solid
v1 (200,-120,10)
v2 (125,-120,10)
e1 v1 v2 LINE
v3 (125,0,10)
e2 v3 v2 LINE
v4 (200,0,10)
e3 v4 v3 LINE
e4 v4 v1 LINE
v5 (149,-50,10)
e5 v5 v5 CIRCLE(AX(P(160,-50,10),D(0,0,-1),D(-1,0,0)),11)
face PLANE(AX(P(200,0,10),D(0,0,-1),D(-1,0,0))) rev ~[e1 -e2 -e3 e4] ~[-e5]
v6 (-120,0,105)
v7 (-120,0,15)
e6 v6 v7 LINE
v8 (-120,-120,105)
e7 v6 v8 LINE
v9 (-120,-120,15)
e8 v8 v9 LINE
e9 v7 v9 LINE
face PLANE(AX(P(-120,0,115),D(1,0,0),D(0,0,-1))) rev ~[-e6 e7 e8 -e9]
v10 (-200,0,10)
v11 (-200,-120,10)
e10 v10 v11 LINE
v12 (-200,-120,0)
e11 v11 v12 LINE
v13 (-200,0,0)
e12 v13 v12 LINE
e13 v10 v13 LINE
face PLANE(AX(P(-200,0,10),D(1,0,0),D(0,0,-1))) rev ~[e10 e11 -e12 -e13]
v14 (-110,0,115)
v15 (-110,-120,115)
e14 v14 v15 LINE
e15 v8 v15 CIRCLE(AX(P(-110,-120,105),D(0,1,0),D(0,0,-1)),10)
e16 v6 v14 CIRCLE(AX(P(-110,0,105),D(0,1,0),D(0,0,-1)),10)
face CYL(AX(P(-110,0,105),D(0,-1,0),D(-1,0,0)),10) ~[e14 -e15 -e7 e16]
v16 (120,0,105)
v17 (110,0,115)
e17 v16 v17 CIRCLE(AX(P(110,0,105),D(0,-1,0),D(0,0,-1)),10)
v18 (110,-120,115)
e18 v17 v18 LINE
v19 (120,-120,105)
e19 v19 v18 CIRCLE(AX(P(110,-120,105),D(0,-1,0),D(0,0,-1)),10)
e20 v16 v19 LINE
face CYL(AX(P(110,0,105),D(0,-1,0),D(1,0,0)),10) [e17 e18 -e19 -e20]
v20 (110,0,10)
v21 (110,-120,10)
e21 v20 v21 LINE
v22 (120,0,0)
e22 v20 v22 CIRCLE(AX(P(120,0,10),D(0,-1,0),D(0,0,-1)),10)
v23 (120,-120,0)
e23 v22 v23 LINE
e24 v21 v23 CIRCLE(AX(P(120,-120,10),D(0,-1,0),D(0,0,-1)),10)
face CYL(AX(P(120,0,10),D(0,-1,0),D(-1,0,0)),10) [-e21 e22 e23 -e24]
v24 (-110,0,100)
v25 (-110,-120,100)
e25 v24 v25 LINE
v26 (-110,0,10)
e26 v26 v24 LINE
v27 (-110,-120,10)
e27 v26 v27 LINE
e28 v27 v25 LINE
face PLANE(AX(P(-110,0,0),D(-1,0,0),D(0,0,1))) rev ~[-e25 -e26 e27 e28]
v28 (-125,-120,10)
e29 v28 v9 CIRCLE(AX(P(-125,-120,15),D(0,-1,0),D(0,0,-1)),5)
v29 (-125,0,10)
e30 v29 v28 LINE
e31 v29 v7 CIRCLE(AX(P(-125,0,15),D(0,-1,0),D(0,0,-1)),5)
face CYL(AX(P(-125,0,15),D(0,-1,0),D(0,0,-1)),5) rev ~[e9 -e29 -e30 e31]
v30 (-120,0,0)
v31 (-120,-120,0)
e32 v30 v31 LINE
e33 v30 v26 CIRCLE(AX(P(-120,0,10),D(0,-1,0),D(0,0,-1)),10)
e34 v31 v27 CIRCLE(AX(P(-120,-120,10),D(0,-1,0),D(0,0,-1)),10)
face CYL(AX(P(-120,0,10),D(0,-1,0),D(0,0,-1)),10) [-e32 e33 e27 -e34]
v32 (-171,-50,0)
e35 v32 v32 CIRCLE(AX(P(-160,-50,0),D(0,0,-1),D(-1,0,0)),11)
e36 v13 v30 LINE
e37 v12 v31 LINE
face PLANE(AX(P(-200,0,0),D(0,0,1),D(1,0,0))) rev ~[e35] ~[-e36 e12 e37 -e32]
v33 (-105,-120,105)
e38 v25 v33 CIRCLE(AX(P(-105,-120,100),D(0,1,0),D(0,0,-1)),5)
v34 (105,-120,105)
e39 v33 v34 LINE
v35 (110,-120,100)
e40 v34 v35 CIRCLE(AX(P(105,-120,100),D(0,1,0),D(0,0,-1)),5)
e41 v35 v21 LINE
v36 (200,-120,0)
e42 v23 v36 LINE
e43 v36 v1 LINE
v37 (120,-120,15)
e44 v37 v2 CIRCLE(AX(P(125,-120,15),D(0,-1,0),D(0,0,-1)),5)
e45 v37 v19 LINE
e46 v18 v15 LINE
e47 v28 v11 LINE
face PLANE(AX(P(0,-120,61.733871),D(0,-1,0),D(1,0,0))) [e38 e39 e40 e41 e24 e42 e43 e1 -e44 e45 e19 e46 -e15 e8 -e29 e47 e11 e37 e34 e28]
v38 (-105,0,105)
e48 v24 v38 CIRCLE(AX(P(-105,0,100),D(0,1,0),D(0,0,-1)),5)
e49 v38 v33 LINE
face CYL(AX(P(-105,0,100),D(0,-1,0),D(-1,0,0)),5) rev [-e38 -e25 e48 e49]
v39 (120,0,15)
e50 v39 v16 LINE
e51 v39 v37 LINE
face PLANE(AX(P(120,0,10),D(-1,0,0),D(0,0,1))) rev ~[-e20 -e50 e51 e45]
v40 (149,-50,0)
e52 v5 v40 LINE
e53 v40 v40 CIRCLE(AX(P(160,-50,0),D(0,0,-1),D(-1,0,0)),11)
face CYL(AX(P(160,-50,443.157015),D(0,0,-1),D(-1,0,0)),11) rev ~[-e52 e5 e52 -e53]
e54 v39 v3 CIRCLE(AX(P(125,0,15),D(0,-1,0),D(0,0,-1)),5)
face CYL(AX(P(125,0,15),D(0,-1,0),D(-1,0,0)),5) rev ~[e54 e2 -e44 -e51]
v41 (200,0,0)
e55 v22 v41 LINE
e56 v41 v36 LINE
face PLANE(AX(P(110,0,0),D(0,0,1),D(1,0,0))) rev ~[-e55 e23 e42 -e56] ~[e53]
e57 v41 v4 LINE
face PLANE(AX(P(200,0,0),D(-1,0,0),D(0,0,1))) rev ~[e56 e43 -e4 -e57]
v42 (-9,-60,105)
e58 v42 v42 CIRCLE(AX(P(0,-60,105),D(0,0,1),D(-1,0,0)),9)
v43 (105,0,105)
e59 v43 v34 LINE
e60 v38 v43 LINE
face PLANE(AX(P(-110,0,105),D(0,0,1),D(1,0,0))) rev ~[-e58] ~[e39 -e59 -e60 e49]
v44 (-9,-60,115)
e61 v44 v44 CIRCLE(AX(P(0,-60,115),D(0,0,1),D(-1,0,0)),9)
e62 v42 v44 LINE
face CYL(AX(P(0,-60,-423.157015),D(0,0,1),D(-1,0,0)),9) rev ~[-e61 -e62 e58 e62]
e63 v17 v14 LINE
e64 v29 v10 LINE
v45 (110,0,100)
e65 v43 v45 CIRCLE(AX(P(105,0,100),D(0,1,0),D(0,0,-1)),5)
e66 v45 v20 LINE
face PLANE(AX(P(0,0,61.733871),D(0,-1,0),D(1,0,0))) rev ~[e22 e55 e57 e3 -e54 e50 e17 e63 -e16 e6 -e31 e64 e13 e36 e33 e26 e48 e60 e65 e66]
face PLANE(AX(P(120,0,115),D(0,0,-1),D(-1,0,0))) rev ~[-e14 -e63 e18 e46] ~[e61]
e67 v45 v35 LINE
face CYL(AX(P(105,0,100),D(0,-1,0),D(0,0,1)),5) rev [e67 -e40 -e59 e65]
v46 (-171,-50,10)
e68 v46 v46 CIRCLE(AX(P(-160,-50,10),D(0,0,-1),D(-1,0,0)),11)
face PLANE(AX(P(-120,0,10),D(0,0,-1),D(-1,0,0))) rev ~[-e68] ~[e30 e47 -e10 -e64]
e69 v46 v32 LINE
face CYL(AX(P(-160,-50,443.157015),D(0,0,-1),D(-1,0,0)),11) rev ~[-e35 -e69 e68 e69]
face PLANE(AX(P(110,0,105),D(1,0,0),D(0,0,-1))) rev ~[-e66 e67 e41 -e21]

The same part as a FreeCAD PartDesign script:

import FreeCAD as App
import Part
import Sketcher


def edges_at(feature, points):
    """Names of the edges that pass closest to the given points."""
    edges = feature.Shape.Edges
    near = lambda p: min(range(len(edges)), key=lambda i: edges[i].distToShape(Part.Vertex(*p))[0])
    return sorted({f"Edge{near(p) + 1}" for p in points})


def add_polygon(sketch, points):
    """Adds a closed chain of lines whose ends are joined by coincident constraints."""
    first, n = sketch.GeometryCount, len(points)
    for a, b in zip(points, points[1:] + points[:1]):
        sketch.addGeometry(Part.LineSegment(App.Vector(*a, 0), App.Vector(*b, 0)), False)
    for i in range(n):
        sketch.addConstraint(Sketcher.Constraint("Coincident", first + i, 2, first + (i + 1) % n, 1))

doc = App.newDocument("Part")
body = doc.addObject("PartDesign::Body", "Body")

# Sketch on XZ plane
sketch1 = body.newObject("Sketcher::SketchObject", "Sketch")
sketch1.AttachmentSupport = (doc.getObject("XZ_Plane"), [""])
sketch1.MapMode = "FlatFace"
add_polygon(sketch1, [(-200, 10), (-200, 0), (-110, 0), (-110, 105), (110, 105), (110, 0), (200, 0), (200, 10), (120, 10), (120, 115), (-120, 115), (-120, 10)])  # lines 0-11
sketch1.addConstraint([
    Sketcher.Constraint("Vertical", 0),
    Sketcher.Constraint("Horizontal", 1),
    Sketcher.Constraint("Vertical", 2),
    Sketcher.Constraint("Horizontal", 3),
    Sketcher.Constraint("Vertical", 4),
    Sketcher.Constraint("Horizontal", 5),
    Sketcher.Constraint("Vertical", 6),
    Sketcher.Constraint("Horizontal", 7),
    Sketcher.Constraint("Vertical", 8),
    Sketcher.Constraint("Horizontal", 9),
    Sketcher.Constraint("Vertical", 10),
    Sketcher.Constraint("Horizontal", 11),
    Sketcher.Constraint("Symmetric", 1, 2, 4, 2, -1, 1),
    Sketcher.Constraint("Symmetric", 0, 2, 5, 2, -2),
    Sketcher.Constraint("Symmetric", 7, 2, 10, 2, -2),
    Sketcher.Constraint("Equal", 4, 8),
    Sketcher.Constraint("DistanceX", 1, 1, 1, 2, 90.0),
    Sketcher.Constraint("DistanceX", 3, 1, 3, 2, 220.0),
    Sketcher.Constraint("DistanceX", 7, 2, 7, 1, 80.0),
    Sketcher.Constraint("DistanceY", 0, 2, 0, 1, 10.0),
    Sketcher.Constraint("DistanceY", 2, 1, 2, 2, 105.0),
])
pad1 = body.newObject("PartDesign::Pad", "Pad")
pad1.Profile = sketch1
pad1.Length = 120

# Sketch on XY plane
sketch2 = body.newObject("Sketcher::SketchObject", "Sketch001")
sketch2.AttachmentSupport = (doc.getObject("XY_Plane"), [""])
sketch2.MapMode = "FlatFace"
sketch2.AttachmentOffset = App.Placement(App.Vector(0, 0, 10), App.Rotation())
sketch2.addGeometry([
    Part.Circle(App.Vector(160, -50, 0), App.Vector(0, 0, 1), 11),
    Part.Circle(App.Vector(-160, -50, 0), App.Vector(0, 0, 1), 11),
], False)
sketch2.addConstraint([
    Sketcher.Constraint("Equal", 0, 1),
    Sketcher.Constraint("Symmetric", 0, 3, 1, 3, -2),
    Sketcher.Constraint("Diameter", 0, 22.0),
    Sketcher.Constraint("DistanceX", -1, 1, 0, 3, 160.0),
    Sketcher.Constraint("DistanceY", 0, 3, -1, 1, 50.0),
])
doc.recompute()
hole = body.newObject("PartDesign::Hole", "Hole")
hole.Profile = sketch2
hole.ThreadType = "None"
hole.Diameter = 22
hole.DepthType = "ThroughAll"

# Sketch on XY plane
sketch3 = body.newObject("Sketcher::SketchObject", "Sketch002")
sketch3.AttachmentSupport = (doc.getObject("XY_Plane"), [""])
sketch3.MapMode = "FlatFace"
sketch3.AttachmentOffset = App.Placement(App.Vector(0, 0, 10), App.Rotation())
sketch3.addGeometry(Part.Circle(App.Vector(0, -60, 0), App.Vector(0, 0, 1), 9), False)
sketch3.addConstraint([
    Sketcher.Constraint("PointOnObject", 0, 3, -2),
    Sketcher.Constraint("Diameter", 0, 18.0),
    Sketcher.Constraint("DistanceY", 0, 3, -1, 1, 60.0),
])
doc.recompute()
hole2 = body.newObject("PartDesign::Hole", "Hole001")
hole2.Profile = sketch3
hole2.ThreadType = "None"
hole2.Diameter = 18
hole2.DepthType = "ThroughAll"
hole2.Reversed = True
doc.recompute()

fillet = body.newObject("PartDesign::Fillet", "Fillet")
fillet.Base = (hole2, edges_at(hole2, [
    (-120, -60, 115),
    (120, -60, 115),
    (110, -60, 0),
    (-110, -60, 0),
]))
fillet.Radius = 10
doc.recompute()

fillet2 = body.newObject("PartDesign::Fillet", "Fillet001")
fillet2.Base = (fillet, edges_at(fillet, [
    (-110, -60, 105),
    (110, -60, 105),
    (120, -60, 10),
    (-120, -60, 10),
]))
fillet2.Radius = 5

doc.recompute()
